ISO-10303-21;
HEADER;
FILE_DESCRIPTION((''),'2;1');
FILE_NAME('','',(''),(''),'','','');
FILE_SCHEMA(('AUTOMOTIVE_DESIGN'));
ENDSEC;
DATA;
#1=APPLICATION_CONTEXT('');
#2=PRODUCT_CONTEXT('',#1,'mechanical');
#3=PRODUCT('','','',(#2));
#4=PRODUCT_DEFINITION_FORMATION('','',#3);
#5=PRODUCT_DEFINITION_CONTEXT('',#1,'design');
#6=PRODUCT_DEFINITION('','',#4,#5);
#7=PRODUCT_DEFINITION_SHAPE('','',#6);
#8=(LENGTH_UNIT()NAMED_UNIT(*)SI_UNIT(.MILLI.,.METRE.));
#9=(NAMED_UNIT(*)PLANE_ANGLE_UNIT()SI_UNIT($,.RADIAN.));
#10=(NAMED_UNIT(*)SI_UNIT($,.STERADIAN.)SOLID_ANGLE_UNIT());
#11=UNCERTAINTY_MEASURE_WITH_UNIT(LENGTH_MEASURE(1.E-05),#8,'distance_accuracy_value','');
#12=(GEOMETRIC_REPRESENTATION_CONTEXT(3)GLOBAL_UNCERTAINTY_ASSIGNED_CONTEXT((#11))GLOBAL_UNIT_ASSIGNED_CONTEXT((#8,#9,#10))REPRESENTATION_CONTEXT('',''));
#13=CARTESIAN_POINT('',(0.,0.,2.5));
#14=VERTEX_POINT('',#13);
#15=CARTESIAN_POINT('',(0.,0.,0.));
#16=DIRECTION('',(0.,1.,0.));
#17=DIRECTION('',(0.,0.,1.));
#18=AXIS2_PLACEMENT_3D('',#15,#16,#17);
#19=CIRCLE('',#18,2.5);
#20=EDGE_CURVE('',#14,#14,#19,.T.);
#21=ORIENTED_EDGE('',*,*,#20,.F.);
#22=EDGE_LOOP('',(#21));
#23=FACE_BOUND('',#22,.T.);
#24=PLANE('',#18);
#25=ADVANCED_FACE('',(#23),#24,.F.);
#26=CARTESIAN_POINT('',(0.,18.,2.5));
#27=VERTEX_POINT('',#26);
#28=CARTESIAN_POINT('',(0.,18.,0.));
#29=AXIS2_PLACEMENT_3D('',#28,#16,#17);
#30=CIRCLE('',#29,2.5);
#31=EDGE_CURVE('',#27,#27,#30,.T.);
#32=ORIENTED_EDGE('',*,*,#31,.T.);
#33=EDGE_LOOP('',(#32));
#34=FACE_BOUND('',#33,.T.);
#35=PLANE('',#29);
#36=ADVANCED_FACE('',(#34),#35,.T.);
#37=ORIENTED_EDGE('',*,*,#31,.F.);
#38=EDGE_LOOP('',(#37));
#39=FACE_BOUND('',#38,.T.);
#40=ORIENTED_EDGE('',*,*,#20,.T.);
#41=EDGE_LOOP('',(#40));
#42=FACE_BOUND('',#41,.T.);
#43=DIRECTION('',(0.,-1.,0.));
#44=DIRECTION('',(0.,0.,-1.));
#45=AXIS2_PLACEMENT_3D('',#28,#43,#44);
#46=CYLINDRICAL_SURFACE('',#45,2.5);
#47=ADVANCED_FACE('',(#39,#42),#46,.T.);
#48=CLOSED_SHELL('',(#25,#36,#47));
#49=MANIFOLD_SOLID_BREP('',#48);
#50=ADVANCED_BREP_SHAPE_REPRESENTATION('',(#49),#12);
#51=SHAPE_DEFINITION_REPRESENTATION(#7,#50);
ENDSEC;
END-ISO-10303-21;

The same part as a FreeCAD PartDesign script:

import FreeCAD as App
import Part
import Sketcher
from FreeCAD import Vector

doc = App.newDocument("Part")
body = doc.addObject("PartDesign::Body", "Body")

sketch1 = body.newObject("Sketcher::SketchObject", "Sketch")
sketch1.AttachmentSupport = (doc.getObject("XZ_Plane"), [""])
sketch1.MapMode = "FlatFace"
sketch1.addGeometry(Part.Circle(Vector(0, 0, 0), Vector(0, 0, 1), 2.5), False)
sketch1.addConstraint([
    Sketcher.Constraint("Coincident", 0, 3, -1, 1),
    Sketcher.Constraint("Diameter", 0, 5.0),
])
pad1 = body.newObject("PartDesign::Pad", "Pad")
pad1.Profile = sketch1
pad1.Length = 18
pad1.Reversed = True

doc.recompute()
